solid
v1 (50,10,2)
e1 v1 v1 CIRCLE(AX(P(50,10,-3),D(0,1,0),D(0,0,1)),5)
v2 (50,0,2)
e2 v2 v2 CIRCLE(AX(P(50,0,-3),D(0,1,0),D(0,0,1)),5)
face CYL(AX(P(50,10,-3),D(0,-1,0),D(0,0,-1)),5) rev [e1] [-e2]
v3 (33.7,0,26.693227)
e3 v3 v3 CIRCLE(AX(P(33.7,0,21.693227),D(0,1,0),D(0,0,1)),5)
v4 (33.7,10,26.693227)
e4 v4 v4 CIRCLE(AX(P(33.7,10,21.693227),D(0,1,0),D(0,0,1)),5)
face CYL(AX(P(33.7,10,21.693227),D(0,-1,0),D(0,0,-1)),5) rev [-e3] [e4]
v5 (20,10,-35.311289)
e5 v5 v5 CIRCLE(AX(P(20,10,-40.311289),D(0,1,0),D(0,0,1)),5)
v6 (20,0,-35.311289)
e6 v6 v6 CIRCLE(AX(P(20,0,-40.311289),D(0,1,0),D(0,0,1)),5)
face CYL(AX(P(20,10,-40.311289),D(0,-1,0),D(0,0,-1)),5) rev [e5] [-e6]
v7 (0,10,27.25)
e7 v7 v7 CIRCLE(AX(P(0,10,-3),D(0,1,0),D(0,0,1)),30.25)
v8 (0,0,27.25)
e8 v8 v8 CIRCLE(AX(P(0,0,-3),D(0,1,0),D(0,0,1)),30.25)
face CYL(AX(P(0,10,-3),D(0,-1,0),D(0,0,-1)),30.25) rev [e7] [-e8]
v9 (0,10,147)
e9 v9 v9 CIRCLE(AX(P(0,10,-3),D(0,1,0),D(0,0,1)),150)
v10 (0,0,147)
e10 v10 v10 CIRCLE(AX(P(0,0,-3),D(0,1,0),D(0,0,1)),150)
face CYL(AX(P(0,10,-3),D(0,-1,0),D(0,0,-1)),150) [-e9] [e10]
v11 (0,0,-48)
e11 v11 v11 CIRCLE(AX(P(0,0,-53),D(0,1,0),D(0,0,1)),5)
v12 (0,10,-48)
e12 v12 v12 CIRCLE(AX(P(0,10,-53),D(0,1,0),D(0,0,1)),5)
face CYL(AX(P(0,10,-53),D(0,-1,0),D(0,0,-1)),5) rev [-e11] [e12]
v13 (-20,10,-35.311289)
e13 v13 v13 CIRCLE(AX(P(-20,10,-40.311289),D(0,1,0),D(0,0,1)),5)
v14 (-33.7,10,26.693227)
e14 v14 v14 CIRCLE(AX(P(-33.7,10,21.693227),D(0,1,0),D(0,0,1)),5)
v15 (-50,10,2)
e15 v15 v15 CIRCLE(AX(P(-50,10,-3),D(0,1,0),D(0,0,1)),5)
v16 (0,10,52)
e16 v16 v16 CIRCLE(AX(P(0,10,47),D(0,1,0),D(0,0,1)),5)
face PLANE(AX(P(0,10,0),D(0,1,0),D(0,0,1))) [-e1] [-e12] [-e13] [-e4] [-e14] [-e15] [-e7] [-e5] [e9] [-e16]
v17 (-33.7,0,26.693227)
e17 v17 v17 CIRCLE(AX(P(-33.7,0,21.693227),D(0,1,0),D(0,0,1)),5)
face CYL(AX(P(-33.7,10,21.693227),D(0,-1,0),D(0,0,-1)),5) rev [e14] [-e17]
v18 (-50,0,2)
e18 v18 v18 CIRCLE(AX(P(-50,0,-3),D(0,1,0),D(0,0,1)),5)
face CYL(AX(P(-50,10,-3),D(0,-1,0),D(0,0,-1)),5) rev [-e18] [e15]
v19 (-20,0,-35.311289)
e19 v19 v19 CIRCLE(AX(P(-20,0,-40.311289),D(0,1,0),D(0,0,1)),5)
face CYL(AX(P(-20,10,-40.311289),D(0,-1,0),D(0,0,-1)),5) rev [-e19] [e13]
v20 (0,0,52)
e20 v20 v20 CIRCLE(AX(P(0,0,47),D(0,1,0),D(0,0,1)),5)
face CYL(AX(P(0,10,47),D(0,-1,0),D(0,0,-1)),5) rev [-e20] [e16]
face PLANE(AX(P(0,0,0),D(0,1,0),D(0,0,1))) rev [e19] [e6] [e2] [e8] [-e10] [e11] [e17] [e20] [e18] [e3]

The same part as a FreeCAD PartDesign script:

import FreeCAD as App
import Part
import Sketcher
from FreeCAD import Vector

doc = App.newDocument("Part")
params = doc.addObject("Spreadsheet::Sheet", "Params")
for row, (alias, value) in enumerate([
    ("sketch1_diameter", "300 mm"),
    ("sketch1_diameter2", "10 mm"),
    ("sketch1_diameter3", "60.5 mm"),
    ("pad1_length", "10 mm"),
], start=1):
    params.set(f"A{row}", alias)
    params.set(f"B{row}", "=" + value)
    params.setAlias(f"B{row}", alias)

body = doc.addObject("PartDesign::Body", "Body")

sketch1 = body.newObject("Sketcher::SketchObject", "Sketch")
sketch1.AttachmentSupport = (doc.getObject("XZ_Plane"), [""])
sketch1.MapMode = "FlatFace"
sketch1.addGeometry([
    Part.Circle(Vector(0, -3, 0), Vector(0, 0, 1), 150),
    Part.Circle(Vector(-20, -40, 0), Vector(0, 0, 1), 5),
    Part.Circle(Vector(0, -53, 0), Vector(0, 0, 1), 5),
    Part.Circle(Vector(-50, -3, 0), Vector(0, 0, 1), 5),
    Part.Circle(Vector(-34, 22, 0), Vector(0, 0, 1), 5),
    Part.Circle(Vector(20, -40, 0), Vector(0, 0, 1), 5),
    Part.Circle(Vector(50, -3, 0), Vector(0, 0, 1), 5),
    Part.Circle(Vector(0, -3, 0), Vector(0, 0, 1), 30),
    Part.Circle(Vector(0, 47, 0), Vector(0, 0, 1), 5),
    Part.Circle(Vector(34, 22, 0), Vector(0, 0, 1), 5),
], False)
sketch1.addConstraint([
    Sketcher.Constraint("Coincident", 7, 3, 0, 3),
    Sketcher.Constraint("Equal", 1, 2),
    Sketcher.Constraint("Equal", 2, 3),
    Sketcher.Constraint("Equal", 3, 4),
    Sketcher.Constraint("Equal", 4, 5),
    Sketcher.Constraint("Equal", 5, 6),
    Sketcher.Constraint("Equal", 6, 8),
    Sketcher.Constraint("Equal", 8, 9),
    Sketcher.Constraint("Symmetric", 1, 3, 5, 3, -2),
    Sketcher.Constraint("Symmetric", 3, 3, 6, 3, -2),
    Sketcher.Constraint("Symmetric", 4, 3, 9, 3, -2),
    Sketcher.Constraint("PointOnObject", 0, 3, -2),
    Sketcher.Constraint("PointOnObject", 2, 3, -2),
    Sketcher.Constraint("PointOnObject", 8, 3, -2),
    Sketcher.Constraint("Horizontal", 0, 3, 3, 3),
    Sketcher.Constraint("Diameter", 0, 300.0),
    Sketcher.Constraint("Diameter", 1, 10.0),
    Sketcher.Constraint("Diameter", 7, 60.5),
    Sketcher.Constraint("DistanceY", 0, 3, -1, 1, 3.0),
    Sketcher.Constraint("DistanceX", 1, 3, -1, 1, 20.0),
    Sketcher.Constraint("DistanceY", 2, 3, -1, 1, 53.0),
    Sketcher.Constraint("DistanceX", 3, 3, -1, 1, 50.0),
    Sketcher.Constraint("DistanceY", -1, 1, 8, 3, 47.0),
    Sketcher.Constraint("DistanceX", 4, 3, -1, 1, 33.7),
    Sketcher.Constraint("DistanceY", 1, 3, -1, 1, 40.311289),
    Sketcher.Constraint("DistanceY", -1, 1, 4, 3, 21.693227),
])
sketch1.setExpression("Constraints[15]", "Params.sketch1_diameter")
sketch1.setExpression("Constraints[16]", "Params.sketch1_diameter2")
sketch1.setExpression("Constraints[17]", "Params.sketch1_diameter3")
pad1 = body.newObject("PartDesign::Pad", "Pad")
pad1.Profile = sketch1
pad1.setExpression("Length", "Params.pad1_length")
pad1.Reversed = True

doc.recompute()
